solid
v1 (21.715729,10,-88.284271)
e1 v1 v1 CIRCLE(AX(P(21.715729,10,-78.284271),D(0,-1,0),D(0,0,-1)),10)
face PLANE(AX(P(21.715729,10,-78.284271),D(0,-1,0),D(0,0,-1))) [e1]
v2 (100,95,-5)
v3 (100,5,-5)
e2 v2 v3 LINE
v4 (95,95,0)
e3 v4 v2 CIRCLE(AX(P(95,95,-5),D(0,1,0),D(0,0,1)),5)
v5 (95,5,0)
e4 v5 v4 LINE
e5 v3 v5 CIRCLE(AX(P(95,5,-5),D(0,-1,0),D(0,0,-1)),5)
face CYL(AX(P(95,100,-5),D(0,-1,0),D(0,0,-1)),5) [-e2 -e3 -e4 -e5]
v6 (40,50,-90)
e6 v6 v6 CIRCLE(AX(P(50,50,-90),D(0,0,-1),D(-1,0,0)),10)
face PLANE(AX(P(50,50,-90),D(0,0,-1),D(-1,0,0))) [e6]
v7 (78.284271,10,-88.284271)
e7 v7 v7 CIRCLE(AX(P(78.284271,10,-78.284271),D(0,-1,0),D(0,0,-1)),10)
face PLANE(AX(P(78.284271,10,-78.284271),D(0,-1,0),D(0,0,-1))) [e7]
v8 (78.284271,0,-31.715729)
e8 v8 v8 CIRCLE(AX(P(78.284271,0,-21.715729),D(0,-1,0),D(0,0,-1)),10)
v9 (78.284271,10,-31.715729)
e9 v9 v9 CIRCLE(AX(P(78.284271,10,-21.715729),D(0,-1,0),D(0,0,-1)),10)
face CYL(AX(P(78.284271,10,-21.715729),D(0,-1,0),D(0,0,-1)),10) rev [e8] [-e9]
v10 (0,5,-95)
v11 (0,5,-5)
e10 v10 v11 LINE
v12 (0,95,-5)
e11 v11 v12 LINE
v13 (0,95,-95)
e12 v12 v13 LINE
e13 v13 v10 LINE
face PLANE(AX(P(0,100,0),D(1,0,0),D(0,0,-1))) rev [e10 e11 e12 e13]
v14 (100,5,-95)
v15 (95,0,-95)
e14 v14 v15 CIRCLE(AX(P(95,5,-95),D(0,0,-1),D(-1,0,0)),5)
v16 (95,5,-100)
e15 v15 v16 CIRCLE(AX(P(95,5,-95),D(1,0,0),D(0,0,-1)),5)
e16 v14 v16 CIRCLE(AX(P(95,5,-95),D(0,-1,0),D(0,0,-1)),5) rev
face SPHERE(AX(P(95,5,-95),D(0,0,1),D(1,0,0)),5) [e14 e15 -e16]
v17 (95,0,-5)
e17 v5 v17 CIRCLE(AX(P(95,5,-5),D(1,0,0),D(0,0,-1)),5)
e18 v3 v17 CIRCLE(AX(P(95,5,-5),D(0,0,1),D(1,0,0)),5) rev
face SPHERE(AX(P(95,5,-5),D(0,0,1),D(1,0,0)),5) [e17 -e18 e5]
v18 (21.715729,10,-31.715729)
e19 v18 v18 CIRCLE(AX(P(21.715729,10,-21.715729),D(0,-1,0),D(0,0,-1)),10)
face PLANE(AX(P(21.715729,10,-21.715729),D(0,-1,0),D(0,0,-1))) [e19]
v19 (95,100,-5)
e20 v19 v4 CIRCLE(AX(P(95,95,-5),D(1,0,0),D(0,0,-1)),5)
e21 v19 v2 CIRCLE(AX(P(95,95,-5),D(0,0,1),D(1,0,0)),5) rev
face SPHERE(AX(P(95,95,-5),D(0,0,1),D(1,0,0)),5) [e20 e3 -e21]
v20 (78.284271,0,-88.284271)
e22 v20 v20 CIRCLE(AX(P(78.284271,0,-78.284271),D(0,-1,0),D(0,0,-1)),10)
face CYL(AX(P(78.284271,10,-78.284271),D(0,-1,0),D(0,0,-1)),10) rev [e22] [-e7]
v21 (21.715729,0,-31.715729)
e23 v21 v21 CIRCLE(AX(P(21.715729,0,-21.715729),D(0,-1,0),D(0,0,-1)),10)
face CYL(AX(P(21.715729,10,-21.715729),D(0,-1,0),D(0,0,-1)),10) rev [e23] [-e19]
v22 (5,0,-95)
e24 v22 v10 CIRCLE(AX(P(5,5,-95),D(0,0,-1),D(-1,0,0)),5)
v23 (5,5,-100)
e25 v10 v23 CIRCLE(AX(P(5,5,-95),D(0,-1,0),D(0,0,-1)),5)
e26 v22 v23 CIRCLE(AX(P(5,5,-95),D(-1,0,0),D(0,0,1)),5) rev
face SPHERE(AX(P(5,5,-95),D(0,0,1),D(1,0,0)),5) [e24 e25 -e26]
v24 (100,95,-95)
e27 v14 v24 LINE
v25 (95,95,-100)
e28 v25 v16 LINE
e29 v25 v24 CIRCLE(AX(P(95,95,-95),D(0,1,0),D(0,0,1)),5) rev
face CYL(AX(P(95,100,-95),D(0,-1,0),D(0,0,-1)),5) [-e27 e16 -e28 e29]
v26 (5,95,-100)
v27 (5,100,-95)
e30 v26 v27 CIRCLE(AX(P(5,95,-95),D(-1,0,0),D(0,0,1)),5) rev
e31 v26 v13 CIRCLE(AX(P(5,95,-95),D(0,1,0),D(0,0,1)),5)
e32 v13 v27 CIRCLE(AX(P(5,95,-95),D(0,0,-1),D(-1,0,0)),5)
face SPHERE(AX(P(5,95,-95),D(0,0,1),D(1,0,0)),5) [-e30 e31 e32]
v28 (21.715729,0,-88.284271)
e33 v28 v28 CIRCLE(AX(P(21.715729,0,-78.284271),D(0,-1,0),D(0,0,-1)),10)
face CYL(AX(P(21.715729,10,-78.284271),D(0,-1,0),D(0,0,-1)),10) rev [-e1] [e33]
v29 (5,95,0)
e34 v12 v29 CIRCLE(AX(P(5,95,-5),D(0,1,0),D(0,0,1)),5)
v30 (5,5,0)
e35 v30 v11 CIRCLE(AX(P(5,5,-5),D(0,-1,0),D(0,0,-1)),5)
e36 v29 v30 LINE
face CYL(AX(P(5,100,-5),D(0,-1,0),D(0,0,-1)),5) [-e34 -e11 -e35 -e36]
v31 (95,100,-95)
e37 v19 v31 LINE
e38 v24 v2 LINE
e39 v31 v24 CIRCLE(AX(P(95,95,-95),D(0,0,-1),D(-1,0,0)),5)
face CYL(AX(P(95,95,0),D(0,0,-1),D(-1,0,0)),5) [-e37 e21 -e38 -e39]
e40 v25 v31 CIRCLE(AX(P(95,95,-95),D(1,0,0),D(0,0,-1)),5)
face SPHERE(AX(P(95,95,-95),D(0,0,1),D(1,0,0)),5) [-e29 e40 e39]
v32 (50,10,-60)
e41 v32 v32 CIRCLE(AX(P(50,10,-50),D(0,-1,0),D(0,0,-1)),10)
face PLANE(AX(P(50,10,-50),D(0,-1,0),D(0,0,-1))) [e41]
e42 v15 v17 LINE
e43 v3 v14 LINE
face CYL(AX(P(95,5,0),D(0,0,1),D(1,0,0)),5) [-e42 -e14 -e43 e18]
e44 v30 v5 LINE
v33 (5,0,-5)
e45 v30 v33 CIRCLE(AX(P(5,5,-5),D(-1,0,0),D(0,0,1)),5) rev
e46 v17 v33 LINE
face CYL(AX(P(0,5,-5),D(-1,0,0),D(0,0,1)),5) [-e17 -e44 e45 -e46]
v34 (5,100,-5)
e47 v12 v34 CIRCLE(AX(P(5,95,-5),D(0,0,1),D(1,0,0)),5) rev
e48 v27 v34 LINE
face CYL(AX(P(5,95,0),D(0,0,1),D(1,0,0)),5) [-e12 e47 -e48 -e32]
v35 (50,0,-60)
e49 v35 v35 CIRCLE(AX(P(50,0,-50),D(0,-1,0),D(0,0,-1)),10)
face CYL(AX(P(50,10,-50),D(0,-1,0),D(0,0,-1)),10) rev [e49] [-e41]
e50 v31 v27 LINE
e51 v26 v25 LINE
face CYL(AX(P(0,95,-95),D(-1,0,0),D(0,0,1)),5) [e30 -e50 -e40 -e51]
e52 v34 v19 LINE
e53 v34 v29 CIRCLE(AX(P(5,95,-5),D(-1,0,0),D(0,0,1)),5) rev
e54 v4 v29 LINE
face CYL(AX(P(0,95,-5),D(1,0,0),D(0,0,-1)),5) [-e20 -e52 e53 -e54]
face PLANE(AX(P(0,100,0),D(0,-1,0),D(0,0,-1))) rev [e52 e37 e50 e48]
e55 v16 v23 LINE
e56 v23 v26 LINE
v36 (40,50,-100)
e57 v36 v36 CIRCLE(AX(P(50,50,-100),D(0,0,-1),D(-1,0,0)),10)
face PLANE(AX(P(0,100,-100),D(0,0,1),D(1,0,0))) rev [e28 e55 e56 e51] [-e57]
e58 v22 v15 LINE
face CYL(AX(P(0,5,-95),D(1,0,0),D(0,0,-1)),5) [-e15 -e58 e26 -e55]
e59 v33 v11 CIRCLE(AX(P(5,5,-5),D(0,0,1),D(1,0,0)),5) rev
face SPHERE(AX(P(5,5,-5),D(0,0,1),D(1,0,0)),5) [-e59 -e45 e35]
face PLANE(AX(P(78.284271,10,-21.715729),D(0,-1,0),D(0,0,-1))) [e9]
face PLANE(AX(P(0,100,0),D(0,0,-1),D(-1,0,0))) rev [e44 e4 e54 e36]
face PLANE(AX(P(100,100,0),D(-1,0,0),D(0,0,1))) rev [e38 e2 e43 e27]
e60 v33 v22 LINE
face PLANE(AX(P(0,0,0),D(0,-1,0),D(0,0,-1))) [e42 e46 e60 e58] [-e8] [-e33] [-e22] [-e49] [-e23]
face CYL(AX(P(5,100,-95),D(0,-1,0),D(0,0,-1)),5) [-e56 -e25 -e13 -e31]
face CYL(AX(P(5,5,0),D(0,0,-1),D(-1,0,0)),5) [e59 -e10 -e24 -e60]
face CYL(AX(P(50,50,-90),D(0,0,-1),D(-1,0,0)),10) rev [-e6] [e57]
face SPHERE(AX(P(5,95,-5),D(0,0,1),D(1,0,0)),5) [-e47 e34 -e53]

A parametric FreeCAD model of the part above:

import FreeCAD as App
import Part
import Sketcher
from FreeCAD import Vector
Q = App.Units.Quantity


def edges_at(feature, points):
    """Names of the edges that pass closest to the given points."""
    edges = feature.Shape.Edges
    near = lambda p: min(range(len(edges)), key=lambda i: edges[i].distToShape(Part.Vertex(*p))[0])
    return sorted({f"Edge{near(p) + 1}" for p in points})

doc = App.newDocument("Part")
body = doc.addObject("PartDesign::Body", "Body")

# Sketch on XZ plane
sketch1 = body.newObject("Sketcher::SketchObject", "Sketch")
sketch1.AttachmentSupport = (doc.getObject("XZ_Plane"), [""])
sketch1.MapMode = "FlatFace"
sketch1.addGeometry([
    Part.LineSegment(Vector(0, -100, 0), Vector(0, 0, 0)),
    Part.LineSegment(Vector(0, 0, 0), Vector(100, 0, 0)),
    Part.LineSegment(Vector(100, 0, 0), Vector(100, -100, 0)),
    Part.LineSegment(Vector(100, -100, 0), Vector(0, -100, 0)),
], False)
sketch1.addConstraint([
    Sketcher.Constraint("Coincident", 0, 2, 1, 1),
    Sketcher.Constraint("Coincident", 1, 2, 2, 1),
    Sketcher.Constraint("Coincident", 2, 2, 3, 1),
    Sketcher.Constraint("Coincident", 3, 2, 0, 1),
    Sketcher.Constraint("Vertical", 0),
    Sketcher.Constraint("Horizontal", 1),
    Sketcher.Constraint("Vertical", 2),
    Sketcher.Constraint("Horizontal", 3),
    Sketcher.Constraint("Coincident", 0, 2, -1, 1),
    Sketcher.Constraint("Equal", 3, 0),
    Sketcher.Constraint("DistanceX", 1, 1, 1, 2, Q("100 mm")),
])
pad1 = body.newObject("PartDesign::Pad", "Pad")
pad1.Profile = sketch1
pad1.Length = 100
pad1.Reversed = True

# Sketch on XY plane
sketch2 = body.newObject("Sketcher::SketchObject", "Sketch001")
sketch2.AttachmentSupport = (doc.getObject("XY_Plane"), [""])
sketch2.MapMode = "FlatFace"
sketch2.AttachmentOffset = App.Placement(Vector(0, 0, -100), App.Rotation())
sketch2.addGeometry(Part.Circle(Vector(50, 50, 0), Vector(0, 0, 1), 10), False)
sketch2.addConstraint([
    Sketcher.Constraint("Diameter", 0, Q("20 mm")),
    Sketcher.Constraint("DistanceX", -1, 1, 0, 3, Q("50 mm")),
    Sketcher.Constraint("DistanceY", -1, 1, 0, 3, Q("50 mm")),
])
pocket1 = body.newObject("PartDesign::Pocket", "Pocket")
pocket1.Profile = sketch2
pocket1.Length = 10
pocket1.Reversed = True

# Sketch on XZ plane
sketch3 = body.newObject("Sketcher::SketchObject", "Sketch002")
sketch3.AttachmentSupport = (doc.getObject("XZ_Plane"), [""])
sketch3.MapMode = "FlatFace"
sketch3.addGeometry([
    Part.Circle(Vector(21.715729, -78.284271, 0), Vector(0, 0, 1), 10),  # 0
    Part.Circle(Vector(21.715729, -21.715729, 0), Vector(0, 0, 1), 10),  # 1
    Part.Circle(Vector(78.284271, -78.284271, 0), Vector(0, 0, 1), 10),  # 2
    Part.Circle(Vector(78.284271, -21.715729, 0), Vector(0, 0, 1), 10),  # 3
    Part.Circle(Vector(50, -50, 0), Vector(0, 0, 1), 10),  # 4
], False)
sketch3.addConstraint([
    Sketcher.Constraint("Equal", 0, 1),
    Sketcher.Constraint("Equal", 1, 2),
    Sketcher.Constraint("Equal", 2, 3),
    Sketcher.Constraint("Equal", 3, 4),
    Sketcher.Constraint("Horizontal", 0, 3, 2, 3),
    Sketcher.Constraint("Horizontal", 1, 3, 3, 3),
    Sketcher.Constraint("Vertical", 0, 3, 1, 3),
    Sketcher.Constraint("Vertical", 2, 3, 3, 3),
    Sketcher.Constraint("Diameter", 0, Q("20 mm")),
    Sketcher.Constraint("DistanceX", -1, 1, 4, 3, Q("50 mm")),
    Sketcher.Constraint("DistanceY", 4, 3, -1, 1, Q("50 mm")),
    Sketcher.Constraint("DistanceX", -1, 1, 0, 3, Q("21.715729 mm")),
    Sketcher.Constraint("DistanceY", 0, 3, -1, 1, Q("78.284271 mm")),
    Sketcher.Constraint("DistanceY", 1, 3, -1, 1, Q("21.715729 mm")),
    Sketcher.Constraint("DistanceX", -1, 1, 2, 3, Q("78.284271 mm")),
])
pocket2 = body.newObject("PartDesign::Pocket", "Pocket001")
pocket2.Profile = sketch3
pocket2.Length = 10
doc.recompute()

fillet = body.newObject("PartDesign::Fillet", "Fillet")
fillet.Base = (pocket2, edges_at(pocket2, [
    (100, 100, -50),
    (50, 100, -100),
    (0, 100, -50),
    (50, 0, -100),
    (100, 0, -50),
    (50, 0, 0),
    (0, 0, -50),
    (0, 50, -100),
    (100, 50, -100),
    (100, 50, 0),
    (0, 50, 0),
    (50, 100, 0),
]))
fillet.Radius = 5

doc.recompute()
